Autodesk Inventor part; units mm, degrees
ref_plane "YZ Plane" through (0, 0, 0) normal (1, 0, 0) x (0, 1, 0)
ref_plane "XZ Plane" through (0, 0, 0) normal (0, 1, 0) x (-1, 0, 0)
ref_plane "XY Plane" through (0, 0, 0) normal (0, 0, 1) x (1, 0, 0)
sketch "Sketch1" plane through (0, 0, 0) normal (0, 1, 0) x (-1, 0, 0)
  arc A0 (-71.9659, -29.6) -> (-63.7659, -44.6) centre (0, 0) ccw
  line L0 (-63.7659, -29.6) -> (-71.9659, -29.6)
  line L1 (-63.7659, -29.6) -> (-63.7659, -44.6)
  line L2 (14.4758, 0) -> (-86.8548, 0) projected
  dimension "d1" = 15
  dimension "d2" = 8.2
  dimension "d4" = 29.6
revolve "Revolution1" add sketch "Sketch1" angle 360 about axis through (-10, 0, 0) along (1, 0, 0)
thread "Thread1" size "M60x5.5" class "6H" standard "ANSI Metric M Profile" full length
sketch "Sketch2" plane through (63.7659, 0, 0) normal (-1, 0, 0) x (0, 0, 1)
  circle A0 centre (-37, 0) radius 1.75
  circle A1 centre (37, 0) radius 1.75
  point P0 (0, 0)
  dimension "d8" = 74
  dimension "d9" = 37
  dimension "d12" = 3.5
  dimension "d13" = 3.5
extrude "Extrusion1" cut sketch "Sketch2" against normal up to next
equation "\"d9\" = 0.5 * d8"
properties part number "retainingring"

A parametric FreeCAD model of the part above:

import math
import FreeCAD as App
import Part
import Sketcher
from FreeCAD import Vector

doc = App.newDocument("Part")
body = doc.addObject("PartDesign::Body", "Body")

sketch1 = body.newObject("Sketcher::SketchObject", "Sketch")
sketch1.AttachmentSupport = (doc.getObject("XZ_Plane"), [""])
sketch1.MapMode = "FlatFace"
sketch1.addGeometry(Part.LineSegment(Vector(64, -30, 0), Vector(72, -30, 0)), False)
sketch1.addGeometry(Part.ArcOfCircle(Part.Circle(Vector(0, 0, 0), Vector(0, 0, 1), 78), math.radians(-34.97), math.radians(-22.36)), False)
sketch1.addGeometry(Part.LineSegment(Vector(64, -45, 0), Vector(64, -30, 0)), False)
sketch1.addConstraint(Sketcher.Constraint("Coincident", 0, 2, 1, 2))
sketch1.addConstraint(Sketcher.Constraint("Coincident", 1, 1, 2, 1))
sketch1.addConstraint(Sketcher.Constraint("Coincident", 2, 2, 0, 1))
sketch1.addConstraint(Sketcher.Constraint("Horizontal", 0))
sketch1.addConstraint(Sketcher.Constraint("Vertical", 2))
sketch1.addConstraint(Sketcher.Constraint("Coincident", 1, 3, -1, 1))
sketch1.addConstraint(Sketcher.Constraint("DistanceY", 2, 1, 2, 2, 15.0))
sketch1.addConstraint(Sketcher.Constraint("DistanceX", 0, 1, 0, 2, 8.2))
sketch1.addConstraint(Sketcher.Constraint("DistanceY", 0, 2, -1, 1, 29.6))
revolution = body.newObject("PartDesign::Revolution", "Revolution")
revolution.Profile = sketch1
revolution.ReferenceAxis = (sketch1, ["H_Axis"])
revolution.Angle = 360

sketch2 = body.newObject("Sketcher::SketchObject", "Sketch001")
sketch2.AttachmentSupport = (doc.getObject("YZ_Plane"), [""])
sketch2.MapMode = "FlatFace"
sketch2.AttachmentOffset = App.Placement(Vector(0, 0, 63.7659), App.Rotation())
sketch2.addGeometry(Part.Circle(Vector(0, -37, 0), Vector(0, 0, 1), 1.8), False)
sketch2.addGeometry(Part.Circle(Vector(0, 37, 0), Vector(0, 0, 1), 1.8), False)
sketch2.addConstraint(Sketcher.Constraint("Equal", 0, 1))
sketch2.addConstraint(Sketcher.Constraint("Symmetric", 0, 3, 1, 3, -1, 1))
sketch2.addConstraint(Sketcher.Constraint("PointOnObject", 0, 3, -2))
sketch2.addConstraint(Sketcher.Constraint("Diameter", 0, 3.5))
sketch2.addConstraint(Sketcher.Constraint("DistanceY", 0, 3, -1, 1, 37.0))
pocket1 = body.newObject("PartDesign::Pocket", "Pocket")
pocket1.Profile = sketch2
pocket1.Length = 5.6076
pocket1.Reversed = True

doc.recompute()
